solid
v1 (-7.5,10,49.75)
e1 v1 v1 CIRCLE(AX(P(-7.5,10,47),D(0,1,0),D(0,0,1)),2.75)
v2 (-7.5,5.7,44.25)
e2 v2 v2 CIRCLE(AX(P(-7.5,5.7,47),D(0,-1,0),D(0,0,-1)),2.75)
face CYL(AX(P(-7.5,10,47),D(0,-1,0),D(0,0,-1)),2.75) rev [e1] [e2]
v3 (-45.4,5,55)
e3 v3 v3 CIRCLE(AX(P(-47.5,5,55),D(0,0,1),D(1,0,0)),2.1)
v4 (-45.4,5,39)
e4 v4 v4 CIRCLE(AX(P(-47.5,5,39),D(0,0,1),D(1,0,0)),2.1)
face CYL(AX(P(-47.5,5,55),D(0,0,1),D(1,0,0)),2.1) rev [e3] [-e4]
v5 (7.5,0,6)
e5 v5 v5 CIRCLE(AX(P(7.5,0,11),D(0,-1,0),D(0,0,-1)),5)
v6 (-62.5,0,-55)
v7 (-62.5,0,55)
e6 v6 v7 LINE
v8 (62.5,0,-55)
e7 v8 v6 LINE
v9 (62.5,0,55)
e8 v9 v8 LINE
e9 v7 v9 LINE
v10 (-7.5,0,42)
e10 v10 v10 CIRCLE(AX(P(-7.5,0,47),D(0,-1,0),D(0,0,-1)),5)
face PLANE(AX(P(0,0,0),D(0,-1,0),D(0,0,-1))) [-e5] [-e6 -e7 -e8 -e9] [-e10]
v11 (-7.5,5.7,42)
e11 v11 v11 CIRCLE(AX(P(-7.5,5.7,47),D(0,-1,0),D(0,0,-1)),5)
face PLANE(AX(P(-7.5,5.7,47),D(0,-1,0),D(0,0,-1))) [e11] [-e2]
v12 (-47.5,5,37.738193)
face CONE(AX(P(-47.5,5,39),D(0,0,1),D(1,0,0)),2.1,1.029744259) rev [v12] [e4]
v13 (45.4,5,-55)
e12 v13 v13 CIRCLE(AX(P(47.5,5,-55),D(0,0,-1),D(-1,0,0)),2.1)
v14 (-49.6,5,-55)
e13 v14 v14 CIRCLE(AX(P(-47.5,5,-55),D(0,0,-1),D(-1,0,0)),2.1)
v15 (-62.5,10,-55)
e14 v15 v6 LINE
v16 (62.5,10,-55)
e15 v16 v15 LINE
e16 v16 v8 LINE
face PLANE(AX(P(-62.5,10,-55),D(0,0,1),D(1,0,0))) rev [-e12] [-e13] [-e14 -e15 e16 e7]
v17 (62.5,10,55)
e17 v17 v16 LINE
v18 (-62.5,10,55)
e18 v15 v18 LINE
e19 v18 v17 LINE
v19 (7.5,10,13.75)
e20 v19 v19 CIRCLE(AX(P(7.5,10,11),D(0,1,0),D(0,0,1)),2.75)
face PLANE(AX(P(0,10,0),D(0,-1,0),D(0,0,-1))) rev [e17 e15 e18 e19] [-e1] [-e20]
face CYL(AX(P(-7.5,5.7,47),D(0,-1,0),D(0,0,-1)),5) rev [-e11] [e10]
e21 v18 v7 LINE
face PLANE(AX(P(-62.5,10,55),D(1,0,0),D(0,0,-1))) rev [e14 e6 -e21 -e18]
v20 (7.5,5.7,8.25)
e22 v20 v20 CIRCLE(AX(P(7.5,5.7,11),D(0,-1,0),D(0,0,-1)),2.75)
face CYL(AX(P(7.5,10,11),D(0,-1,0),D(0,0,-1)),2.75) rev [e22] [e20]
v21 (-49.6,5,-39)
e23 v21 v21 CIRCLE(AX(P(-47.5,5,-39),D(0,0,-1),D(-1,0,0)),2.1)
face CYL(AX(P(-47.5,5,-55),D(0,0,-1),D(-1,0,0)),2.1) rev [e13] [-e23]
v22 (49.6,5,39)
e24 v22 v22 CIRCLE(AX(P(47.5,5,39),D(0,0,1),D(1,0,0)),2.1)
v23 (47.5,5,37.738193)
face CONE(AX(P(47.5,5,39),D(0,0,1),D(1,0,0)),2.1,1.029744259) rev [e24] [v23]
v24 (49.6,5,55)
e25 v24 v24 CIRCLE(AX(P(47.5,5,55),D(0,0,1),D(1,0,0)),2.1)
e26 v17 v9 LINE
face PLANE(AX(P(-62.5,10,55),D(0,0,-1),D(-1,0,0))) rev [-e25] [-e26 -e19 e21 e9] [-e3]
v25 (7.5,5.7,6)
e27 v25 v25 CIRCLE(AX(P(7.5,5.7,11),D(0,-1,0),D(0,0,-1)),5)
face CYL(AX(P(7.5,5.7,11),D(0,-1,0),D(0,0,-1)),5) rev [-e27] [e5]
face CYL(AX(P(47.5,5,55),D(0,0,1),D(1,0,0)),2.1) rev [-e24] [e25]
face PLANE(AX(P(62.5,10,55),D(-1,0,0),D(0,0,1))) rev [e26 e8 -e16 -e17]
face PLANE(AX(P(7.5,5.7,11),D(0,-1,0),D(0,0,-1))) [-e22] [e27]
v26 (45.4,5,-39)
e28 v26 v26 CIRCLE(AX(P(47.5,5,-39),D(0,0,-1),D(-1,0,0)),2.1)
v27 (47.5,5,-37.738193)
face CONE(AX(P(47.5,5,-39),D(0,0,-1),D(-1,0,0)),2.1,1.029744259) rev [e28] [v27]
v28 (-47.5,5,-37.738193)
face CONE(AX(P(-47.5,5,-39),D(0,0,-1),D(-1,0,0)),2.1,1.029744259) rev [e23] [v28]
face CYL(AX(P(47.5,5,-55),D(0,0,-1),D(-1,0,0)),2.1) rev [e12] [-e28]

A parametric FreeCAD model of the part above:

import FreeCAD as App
import Part
import Sketcher


def add_polygon(sketch, points):
    """Adds a closed chain of lines whose ends are joined by coincident constraints."""
    first, n = sketch.GeometryCount, len(points)
    for a, b in zip(points, points[1:] + points[:1]):
        sketch.addGeometry(Part.LineSegment(App.Vector(*a, 0), App.Vector(*b, 0)), False)
    for i in range(n):
        sketch.addConstraint(Sketcher.Constraint("Coincident", first + i, 2, first + (i + 1) % n, 1))

doc = App.newDocument("Part")
params = doc.addObject("Spreadsheet::Sheet", "Params")
for row, (alias, value) in enumerate([
    ("sketch1_diameter", "5.5 mm"),
    ("sketch1_width", "125 mm"),
    ("sketch1_height", "110 mm"),
    ("pad1_length", "10 mm"),
    ("sketch2_diameter", "4.2 mm"),
    ("hole_diameter", "4.2 mm"),
    ("hole_depth", "16 mm"),
    ("sketch3_diameter", "4.2 mm"),
    ("hole2_diameter", "4.2 mm"),
    ("hole2_depth", "16 mm"),
    ("sketch4_diameter", "10 mm"),
    ("pocket1_length", "5.7 mm"),
], start=1):
    params.set(f"A{row}", alias)
    params.set(f"B{row}", "=" + value)
    params.setAlias(f"B{row}", alias)

body = doc.addObject("PartDesign::Body", "Body")

sketch1 = body.newObject("Sketcher::SketchObject", "Sketch")
sketch1.AttachmentSupport = (doc.getObject("XZ_Plane"), [""])
sketch1.MapMode = "FlatFace"
add_polygon(sketch1, [(-62.5, -55), (-62.5, 55), (62.5, 55), (62.5, -55)])
sketch1.addGeometry(Part.Circle(App.Vector(-7.5, 47, 0), App.Vector(0, 0, 1), 2.75), False)
sketch1.addGeometry(Part.Circle(App.Vector(7.5, 11, 0), App.Vector(0, 0, 1), 2.75), False)
sketch1.addConstraint([
    Sketcher.Constraint("Vertical", 0),
    Sketcher.Constraint("Horizontal", 1),
    Sketcher.Constraint("Vertical", 2),
    Sketcher.Constraint("Horizontal", 3),
    Sketcher.Constraint("Equal", 4, 5),
    Sketcher.Constraint("Symmetric", 0, 2, 2, 2, -1, 1),
    Sketcher.Constraint("Diameter", 4, 5.5),
    Sketcher.Constraint("DistanceX", 1, 1, 1, 2, 125.0),
    Sketcher.Constraint("DistanceY", 0, 1, 0, 2, 110.0),
    Sketcher.Constraint("DistanceY", -1, 1, 4, 3, 47.0),
    Sketcher.Constraint("DistanceY", -1, 1, 5, 3, 11.0),
    Sketcher.Constraint("DistanceX", 4, 3, 5, 3, 15.0),
    Sketcher.Constraint("DistanceX", 0, 2, 4, 3, 55.0),
])
sketch1.setExpression("Constraints[10]", "Params.sketch1_diameter")
sketch1.setExpression("Constraints[11]", "Params.sketch1_width")
sketch1.setExpression("Constraints[12]", "Params.sketch1_height")
pad1 = body.newObject("PartDesign::Pad", "Pad")
pad1.Profile = sketch1
pad1.setExpression("Length", "Params.pad1_length")
pad1.Reversed = True

sketch2 = body.newObject("Sketcher::SketchObject", "Sketch001")
sketch2.AttachmentSupport = (doc.getObject("XY_Plane"), [""])
sketch2.MapMode = "FlatFace"
sketch2.AttachmentOffset = App.Placement(App.Vector(0, 0, -55), App.Rotation())
sketch2.addGeometry([
    Part.Circle(App.Vector(47.5, 5, 0), App.Vector(0, 0, 1), 2.1),
    Part.Circle(App.Vector(-47.5, 5, 0), App.Vector(0, 0, 1), 2.1),
], False)
sketch2.addConstraint([
    Sketcher.Constraint("Equal", 0, 1),
    Sketcher.Constraint("Symmetric", 0, 3, 1, 3, -2),
    Sketcher.Constraint("Diameter", 0, 4.2),
    Sketcher.Constraint("DistanceY", -1, 1, 0, 3, 5.0),
    Sketcher.Constraint("DistanceX", 1, 3, 0, 3, 95.0),
])
sketch2.setExpression("Constraints[2]", "Params.sketch2_diameter")
doc.recompute()
hole = body.newObject("PartDesign::Hole", "Hole")
hole.Profile = sketch2
hole.ThreadType = "None"
hole.setExpression("Diameter", "Params.hole_diameter")
hole.DepthType = "Dimension"
hole.setExpression("Depth", "Params.hole_depth")
hole.DrillPoint = "Angled"
hole.DrillPointAngle = 118
hole.Reversed = True

sketch3 = body.newObject("Sketcher::SketchObject", "Sketch002")
sketch3.AttachmentSupport = (doc.getObject("XY_Plane"), [""])
sketch3.MapMode = "FlatFace"
sketch3.AttachmentOffset = App.Placement(App.Vector(0, 0, 55), App.Rotation())
sketch3.addGeometry([
    Part.Circle(App.Vector(-47.5, 5, 0), App.Vector(0, 0, 1), 2.1),
    Part.Circle(App.Vector(47.5, 5, 0), App.Vector(0, 0, 1), 2.1),
], False)
sketch3.addConstraint([
    Sketcher.Constraint("Equal", 0, 1),
    Sketcher.Constraint("Symmetric", 0, 3, 1, 3, -2),
    Sketcher.Constraint("Diameter", 0, 4.2),
    Sketcher.Constraint("DistanceY", -1, 1, 0, 3, 5.0),
    Sketcher.Constraint("DistanceX", 0, 3, 1, 3, 95.0),
])
sketch3.setExpression("Constraints[2]", "Params.sketch3_diameter")
doc.recompute()
hole2 = body.newObject("PartDesign::Hole", "Hole001")
hole2.Profile = sketch3
hole2.ThreadType = "None"
hole2.setExpression("Diameter", "Params.hole2_diameter")
hole2.DepthType = "Dimension"
hole2.setExpression("Depth", "Params.hole2_depth")
hole2.DrillPoint = "Angled"
hole2.DrillPointAngle = 118

sketch4 = body.newObject("Sketcher::SketchObject", "Sketch003")
sketch4.AttachmentSupport = (doc.getObject("XZ_Plane"), [""])
sketch4.MapMode = "FlatFace"
sketch4.addGeometry([
    Part.Circle(App.Vector(7.5, 11, 0), App.Vector(0, 0, 1), 5),
    Part.Circle(App.Vector(-7.5, 47, 0), App.Vector(0, 0, 1), 5),
], False)
sketch4.addConstraint([
    Sketcher.Constraint("Equal", 0, 1),
    Sketcher.Constraint("Diameter", 0, 10.0),
    Sketcher.Constraint("DistanceY", -1, 1, 0, 3, 11.0),
    Sketcher.Constraint("DistanceY", -1, 1, 1, 3, 47.0),
    Sketcher.Constraint("DistanceX", 1, 3, 0, 3, 15.0),
    Sketcher.Constraint("DistanceX", -1, 1, 0, 3, 7.5),
])
sketch4.setExpression("Constraints[1]", "Params.sketch4_diameter")
pocket1 = body.newObject("PartDesign::Pocket", "Pocket")
pocket1.Profile = sketch4
pocket1.setExpression("Length", "Params.pocket1_length")

doc.recompute()
